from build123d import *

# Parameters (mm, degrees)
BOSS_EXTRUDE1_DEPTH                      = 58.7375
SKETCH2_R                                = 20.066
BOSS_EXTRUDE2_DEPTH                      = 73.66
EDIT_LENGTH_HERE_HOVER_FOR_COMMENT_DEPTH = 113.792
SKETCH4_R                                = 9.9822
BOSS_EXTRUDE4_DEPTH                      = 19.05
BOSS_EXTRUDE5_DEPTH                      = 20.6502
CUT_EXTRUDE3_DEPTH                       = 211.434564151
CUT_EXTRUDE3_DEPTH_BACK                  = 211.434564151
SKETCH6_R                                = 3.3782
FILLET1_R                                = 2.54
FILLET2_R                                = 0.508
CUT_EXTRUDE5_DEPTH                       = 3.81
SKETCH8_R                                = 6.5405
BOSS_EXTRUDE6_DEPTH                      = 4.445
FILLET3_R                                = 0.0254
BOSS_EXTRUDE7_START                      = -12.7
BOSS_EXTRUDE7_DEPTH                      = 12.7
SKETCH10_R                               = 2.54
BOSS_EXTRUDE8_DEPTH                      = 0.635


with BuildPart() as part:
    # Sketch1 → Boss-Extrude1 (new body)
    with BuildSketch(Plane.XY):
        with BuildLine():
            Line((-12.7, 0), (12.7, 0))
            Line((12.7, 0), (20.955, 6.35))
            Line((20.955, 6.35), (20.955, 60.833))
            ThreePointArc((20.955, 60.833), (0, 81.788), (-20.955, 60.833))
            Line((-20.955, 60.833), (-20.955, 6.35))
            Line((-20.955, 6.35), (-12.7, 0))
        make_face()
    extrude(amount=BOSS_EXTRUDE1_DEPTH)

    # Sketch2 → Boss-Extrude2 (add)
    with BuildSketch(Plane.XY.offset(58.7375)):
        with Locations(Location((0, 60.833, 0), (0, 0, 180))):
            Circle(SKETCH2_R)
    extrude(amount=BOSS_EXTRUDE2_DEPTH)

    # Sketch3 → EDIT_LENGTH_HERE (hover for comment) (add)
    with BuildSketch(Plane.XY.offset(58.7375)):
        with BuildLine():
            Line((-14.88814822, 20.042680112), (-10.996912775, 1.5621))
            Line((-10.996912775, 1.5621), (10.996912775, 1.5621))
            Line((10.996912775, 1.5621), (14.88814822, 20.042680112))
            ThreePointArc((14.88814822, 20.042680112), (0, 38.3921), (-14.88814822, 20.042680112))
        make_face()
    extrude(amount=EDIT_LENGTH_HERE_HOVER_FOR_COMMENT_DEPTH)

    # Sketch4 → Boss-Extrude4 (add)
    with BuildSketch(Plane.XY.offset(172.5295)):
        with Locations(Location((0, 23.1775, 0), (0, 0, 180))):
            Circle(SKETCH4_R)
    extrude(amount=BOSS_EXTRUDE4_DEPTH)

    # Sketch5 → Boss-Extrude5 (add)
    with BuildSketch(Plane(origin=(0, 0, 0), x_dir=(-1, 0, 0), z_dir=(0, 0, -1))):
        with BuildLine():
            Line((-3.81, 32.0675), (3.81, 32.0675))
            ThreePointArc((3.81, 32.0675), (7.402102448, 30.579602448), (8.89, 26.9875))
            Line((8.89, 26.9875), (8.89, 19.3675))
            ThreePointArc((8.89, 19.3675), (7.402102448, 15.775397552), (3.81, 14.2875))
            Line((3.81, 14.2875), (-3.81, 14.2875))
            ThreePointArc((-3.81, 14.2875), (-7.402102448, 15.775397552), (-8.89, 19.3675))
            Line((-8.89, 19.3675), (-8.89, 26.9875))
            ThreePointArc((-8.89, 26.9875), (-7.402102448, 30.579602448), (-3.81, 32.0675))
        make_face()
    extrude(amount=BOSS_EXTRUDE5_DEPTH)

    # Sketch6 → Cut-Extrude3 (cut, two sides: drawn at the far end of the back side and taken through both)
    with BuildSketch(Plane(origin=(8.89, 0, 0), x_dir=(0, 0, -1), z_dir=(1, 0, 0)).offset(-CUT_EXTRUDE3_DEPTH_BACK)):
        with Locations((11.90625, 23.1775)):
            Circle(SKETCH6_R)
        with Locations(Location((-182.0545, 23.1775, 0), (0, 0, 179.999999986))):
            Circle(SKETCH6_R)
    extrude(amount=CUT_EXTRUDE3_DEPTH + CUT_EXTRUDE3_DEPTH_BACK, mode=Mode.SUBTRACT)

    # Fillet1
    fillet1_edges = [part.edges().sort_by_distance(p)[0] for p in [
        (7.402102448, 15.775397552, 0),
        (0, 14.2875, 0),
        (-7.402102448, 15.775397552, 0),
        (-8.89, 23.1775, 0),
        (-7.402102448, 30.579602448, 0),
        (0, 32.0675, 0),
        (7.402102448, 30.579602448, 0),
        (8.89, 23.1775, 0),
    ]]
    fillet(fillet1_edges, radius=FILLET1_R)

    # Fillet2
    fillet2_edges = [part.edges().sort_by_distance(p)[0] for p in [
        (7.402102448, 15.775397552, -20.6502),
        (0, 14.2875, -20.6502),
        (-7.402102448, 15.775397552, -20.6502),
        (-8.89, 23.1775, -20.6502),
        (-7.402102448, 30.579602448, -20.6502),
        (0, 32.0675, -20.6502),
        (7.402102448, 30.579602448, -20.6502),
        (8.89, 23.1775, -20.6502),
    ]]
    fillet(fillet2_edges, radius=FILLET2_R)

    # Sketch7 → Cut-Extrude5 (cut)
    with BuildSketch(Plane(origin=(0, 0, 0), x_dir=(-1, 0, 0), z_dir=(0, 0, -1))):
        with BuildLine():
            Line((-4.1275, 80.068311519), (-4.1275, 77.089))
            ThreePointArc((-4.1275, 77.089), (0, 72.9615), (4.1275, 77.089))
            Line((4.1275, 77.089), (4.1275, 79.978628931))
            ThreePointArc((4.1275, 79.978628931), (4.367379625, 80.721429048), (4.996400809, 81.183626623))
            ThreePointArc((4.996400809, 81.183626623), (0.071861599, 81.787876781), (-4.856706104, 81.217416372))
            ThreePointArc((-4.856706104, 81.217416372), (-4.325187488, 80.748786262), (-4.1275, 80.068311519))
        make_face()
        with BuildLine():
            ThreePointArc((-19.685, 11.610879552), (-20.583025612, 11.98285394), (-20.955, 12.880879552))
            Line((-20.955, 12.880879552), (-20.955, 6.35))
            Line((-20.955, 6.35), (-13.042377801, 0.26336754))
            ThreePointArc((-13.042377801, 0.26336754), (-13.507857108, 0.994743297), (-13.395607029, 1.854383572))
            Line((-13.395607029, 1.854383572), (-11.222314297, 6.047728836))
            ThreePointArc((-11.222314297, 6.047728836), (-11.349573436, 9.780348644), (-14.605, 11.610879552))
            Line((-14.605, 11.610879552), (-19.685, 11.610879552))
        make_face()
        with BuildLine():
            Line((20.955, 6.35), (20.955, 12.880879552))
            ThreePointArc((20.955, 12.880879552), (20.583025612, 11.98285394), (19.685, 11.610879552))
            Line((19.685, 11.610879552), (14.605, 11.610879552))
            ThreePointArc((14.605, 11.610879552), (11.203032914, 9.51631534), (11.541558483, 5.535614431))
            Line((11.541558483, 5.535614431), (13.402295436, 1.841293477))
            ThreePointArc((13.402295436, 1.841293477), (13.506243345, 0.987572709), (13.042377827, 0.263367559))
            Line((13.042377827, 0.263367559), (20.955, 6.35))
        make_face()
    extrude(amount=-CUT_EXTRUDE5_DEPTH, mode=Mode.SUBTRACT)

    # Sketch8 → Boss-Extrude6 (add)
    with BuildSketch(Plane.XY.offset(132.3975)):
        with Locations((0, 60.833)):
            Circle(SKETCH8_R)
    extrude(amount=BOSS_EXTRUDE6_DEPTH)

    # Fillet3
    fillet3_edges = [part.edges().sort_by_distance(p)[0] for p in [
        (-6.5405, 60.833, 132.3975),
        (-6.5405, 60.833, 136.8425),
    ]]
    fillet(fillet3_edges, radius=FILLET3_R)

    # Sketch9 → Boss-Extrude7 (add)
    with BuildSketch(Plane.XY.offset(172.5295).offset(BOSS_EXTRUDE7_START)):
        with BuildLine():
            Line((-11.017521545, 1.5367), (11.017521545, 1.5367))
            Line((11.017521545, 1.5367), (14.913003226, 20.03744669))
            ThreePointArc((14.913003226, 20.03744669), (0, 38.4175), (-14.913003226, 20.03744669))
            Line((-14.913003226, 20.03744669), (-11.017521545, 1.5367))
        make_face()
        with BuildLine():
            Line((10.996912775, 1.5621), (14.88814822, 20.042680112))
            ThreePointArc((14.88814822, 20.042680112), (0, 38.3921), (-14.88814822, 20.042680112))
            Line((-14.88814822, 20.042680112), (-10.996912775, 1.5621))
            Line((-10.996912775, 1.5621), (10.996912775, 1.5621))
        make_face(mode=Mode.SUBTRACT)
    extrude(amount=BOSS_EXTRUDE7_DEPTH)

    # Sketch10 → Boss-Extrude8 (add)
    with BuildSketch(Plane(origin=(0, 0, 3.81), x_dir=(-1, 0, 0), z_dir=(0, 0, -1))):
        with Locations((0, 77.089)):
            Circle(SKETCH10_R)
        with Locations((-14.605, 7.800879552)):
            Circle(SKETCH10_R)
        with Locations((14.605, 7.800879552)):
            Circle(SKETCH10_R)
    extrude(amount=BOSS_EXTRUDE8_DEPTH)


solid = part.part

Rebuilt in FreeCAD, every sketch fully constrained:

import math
import FreeCAD as App
import Part
import Sketcher
Q = App.Units.Quantity


def edges_at(feature, points):
    """Names of the edges that pass closest to the given points."""
    edges = feature.Shape.Edges
    near = lambda p: min(range(len(edges)), key=lambda i: edges[i].distToShape(Part.Vertex(*p))[0])
    return sorted({f"Edge{near(p) + 1}" for p in points})

doc = App.newDocument("Part")
body = doc.addObject("PartDesign::Body", "Body")

sketch1 = body.newObject("Sketcher::SketchObject", "Sketch")
sketch1.AttachmentSupport = (doc.getObject("XY_Plane"), [""])
sketch1.MapMode = "FlatFace"
sketch1.addGeometry([
    Part.LineSegment(App.Vector(-13, 0, 0), App.Vector(13, 0, 0)),
    Part.LineSegment(App.Vector(13, 0, 0), App.Vector(21, 6, 0)),
    Part.LineSegment(App.Vector(21, 6, 0), App.Vector(21, 61, 0)),
    Part.ArcOfCircle(Part.Circle(App.Vector(0, 61, 0), App.Vector(0, 0, 1), 21), math.radians(0), math.radians(180)),
    Part.LineSegment(App.Vector(-21, 61, 0), App.Vector(-21, 6, 0)),
    Part.LineSegment(App.Vector(-21, 6, 0), App.Vector(-13, 0, 0)),
], False)
sketch1.addConstraint([
    Sketcher.Constraint("Coincident", 0, 2, 1, 1),
    Sketcher.Constraint("Coincident", 1, 2, 2, 1),
    Sketcher.Constraint("Tangent", 2, 2, 3, 1),
    Sketcher.Constraint("Tangent", 3, 2, 4, 1),
    Sketcher.Constraint("Coincident", 4, 2, 5, 1),
    Sketcher.Constraint("Coincident", 5, 2, 0, 1),
    Sketcher.Constraint("Horizontal", 0),
    Sketcher.Constraint("Vertical", 2),
    Sketcher.Constraint("Vertical", 4),
    Sketcher.Constraint("Symmetric", 0, 2, 5, 2, -1, 1),
    Sketcher.Constraint("Symmetric", 1, 2, 4, 2, -2),
    Sketcher.Constraint("DistanceX", 0, 1, 0, 2, Q("1 in")),
    Sketcher.Constraint("Radius", 3, Q("0.825 in")),
    Sketcher.Constraint("DistanceY", 2, 1, 2, 2, Q("2.145 in")),
    Sketcher.Constraint("DistanceY", -1, 1, 1, 2, Q("0.25 in")),
])
pad1 = body.newObject("PartDesign::Pad", "Pad")
pad1.Profile = sketch1
pad1.Length = Q("2.3125 in")

sketch2 = body.newObject("Sketcher::SketchObject", "Sketch001")
sketch2.AttachmentSupport = (doc.getObject("XY_Plane"), [""])
sketch2.MapMode = "FlatFace"
sketch2.AttachmentOffset = App.Placement(App.Vector(0, 0, 2.3125 * 25.4), App.Rotation())
sketch2.addGeometry(Part.Circle(App.Vector(0, 61, 0), App.Vector(0, 0, 1), 20), False)
sketch2.addConstraint([
    Sketcher.Constraint("PointOnObject", 0, 3, -2),
    Sketcher.Constraint("Diameter", 0, Q("1.58 in")),
    Sketcher.Constraint("DistanceY", -1, 1, 0, 3, Q("2.395 in")),
])
pad2 = body.newObject("PartDesign::Pad", "Pad001")
pad2.Profile = sketch2
pad2.Length = Q("2.9 in")

sketch3 = body.newObject("Sketcher::SketchObject", "Sketch002")
sketch3.AttachmentSupport = (doc.getObject("XY_Plane"), [""])
sketch3.MapMode = "FlatFace"
sketch3.AttachmentOffset = App.Placement(App.Vector(0, 0, 2.3125 * 25.4), App.Rotation())
sketch3.addGeometry([
    Part.LineSegment(App.Vector(-15, 20, 0), App.Vector(-11, 2, 0)),
    Part.LineSegment(App.Vector(-11, 2, 0), App.Vector(11, 2, 0)),
    Part.LineSegment(App.Vector(11, 2, 0), App.Vector(15, 20, 0)),
    Part.ArcOfCircle(Part.Circle(App.Vector(0, 23, 0), App.Vector(0, 0, 1), 15), math.radians(-12), math.radians(192)),
], False)
sketch3.addConstraint([
    Sketcher.Constraint("Coincident", 0, 2, 1, 1),
    Sketcher.Constraint("Coincident", 1, 2, 2, 1),
    Sketcher.Constraint("Tangent", 2, 2, 3, 1),
    Sketcher.Constraint("Tangent", 3, 2, 0, 1),
    Sketcher.Constraint("Horizontal", 1),
    Sketcher.Constraint("Symmetric", 2, 2, 3, 2, -2),
    Sketcher.Constraint("Radius", 3, Q("0.599 in")),
    Sketcher.Constraint("DistanceY", 0, 2, 3, 3, Q("0.851 in")),
    Sketcher.Constraint("DistanceY", -1, 1, 3, 3, Q("0.9125 in")),
    Sketcher.Constraint("DistanceX", 1, 1, 1, 2, Q("21.993826 mm")),
])
pad3 = body.newObject("PartDesign::Pad", "Pad002")
pad3.Profile = sketch3
pad3.Length = Q("4.48 in")

sketch4 = body.newObject("Sketcher::SketchObject", "Sketch003")
sketch4.AttachmentSupport = (doc.getObject("XY_Plane"), [""])
sketch4.MapMode = "FlatFace"
sketch4.AttachmentOffset = App.Placement(App.Vector(0, 0, 6.7925 * 25.4), App.Rotation())
sketch4.addGeometry(Part.Circle(App.Vector(0, 23, 0), App.Vector(0, 0, 1), 10), False)
sketch4.addConstraint([
    Sketcher.Constraint("PointOnObject", 0, 3, -2),
    Sketcher.Constraint("Diameter", 0, Q("0.786 in")),
    Sketcher.Constraint("DistanceY", -1, 1, 0, 3, Q("0.9125 in")),
])
pad4 = body.newObject("PartDesign::Pad", "Pad003")
pad4.Profile = sketch4
pad4.Length = Q("0.75 in")

sketch5 = body.newObject("Sketcher::SketchObject", "Sketch004")
sketch5.AttachmentSupport = (doc.getObject("XY_Plane"), [""])
sketch5.MapMode = "FlatFace"
sketch5.addGeometry([
    Part.LineSegment(App.Vector(-4, 32, 0), App.Vector(4, 32, 0)),
    Part.ArcOfCircle(Part.Circle(App.Vector(4, 27, 0), App.Vector(0, 0, 1), 5), math.radians(0), math.radians(90)),
    Part.LineSegment(App.Vector(9, 27, 0), App.Vector(9, 19, 0)),
    Part.ArcOfCircle(Part.Circle(App.Vector(4, 19, 0), App.Vector(0, 0, 1), 5), math.radians(-90), math.radians(0)),
    Part.LineSegment(App.Vector(4, 14, 0), App.Vector(-4, 14, 0)),
    Part.ArcOfCircle(Part.Circle(App.Vector(-4, 19, 0), App.Vector(0, 0, 1), 5), math.radians(-180), math.radians(-90)),
    Part.LineSegment(App.Vector(-9, 19, 0), App.Vector(-9, 27, 0)),
    Part.ArcOfCircle(Part.Circle(App.Vector(-4, 27, 0), App.Vector(0, 0, 1), 5), math.radians(90), math.radians(180)),
], False)
sketch5.addConstraint([
    Sketcher.Constraint("Tangent", 0, 2, 1, 2),
    Sketcher.Constraint("Tangent", 1, 1, 2, 1),
    Sketcher.Constraint("Tangent", 2, 2, 3, 2),
    Sketcher.Constraint("Tangent", 3, 1, 4, 1),
    Sketcher.Constraint("Tangent", 4, 2, 5, 2),
    Sketcher.Constraint("Tangent", 5, 1, 6, 1),
    Sketcher.Constraint("Tangent", 6, 2, 7, 2),
    Sketcher.Constraint("Tangent", 7, 1, 0, 1),
    Sketcher.Constraint("Horizontal", 0),
    Sketcher.Constraint("Vertical", 2),
    Sketcher.Constraint("Horizontal", 4),
    Sketcher.Constraint("Vertical", 6),
    Sketcher.Constraint("Equal", 1, 3),
    Sketcher.Constraint("Equal", 3, 5),
    Sketcher.Constraint("Equal", 5, 7),
    Sketcher.Constraint("Equal", 4, 2),
    Sketcher.Constraint("Radius", 1, Q("0.2 in")),
    Sketcher.Constraint("DistanceX", 0, 1, 0, 2, Q("0.3 in")),
    Sketcher.Constraint("DistanceX", -1, 1, 1, 3, Q("0.15 in")),
    Sketcher.Constraint("DistanceY", -1, 1, 1, 3, Q("1.0625 in")),
])
pad5 = body.newObject("PartDesign::Pad", "Pad004")
pad5.Profile = sketch5
pad5.Length = Q("0.813 in")
pad5.Reversed = True

sketch6 = body.newObject("Sketcher::SketchObject", "Sketch005")
sketch6.AttachmentSupport = (doc.getObject("YZ_Plane"), [""])
sketch6.MapMode = "FlatFace"
sketch6.AttachmentOffset = App.Placement(App.Vector(0, 0, 0.35 * 25.4), App.Rotation())
sketch6.addGeometry([
    Part.Circle(App.Vector(23.2, -11.9, 0), App.Vector(0, 0, 1), 3.4),
    Part.Circle(App.Vector(23.2, 182.1, 0), App.Vector(0, 0, 1), 3.4),
], False)
sketch6.addConstraint([
    Sketcher.Constraint("Equal", 0, 1),
    Sketcher.Constraint("Vertical", 0, 3, 1, 3),
    Sketcher.Constraint("Diameter", 0, Q("0.266 in")),
    Sketcher.Constraint("DistanceY", 0, 3, -1, 1, Q("0.46875 in")),
    Sketcher.Constraint("DistanceX", -1, 1, 0, 3, Q("0.9125 in")),
    Sketcher.Constraint("DistanceY", -1, 1, 1, 3, Q("7.1675 in")),
])
pocket1 = body.newObject("PartDesign::Pocket", "Pocket")
pocket1.Profile = sketch6
pocket1.Type = "ThroughAll"
pocket1.Midplane = True
doc.recompute()

fillet = body.newObject("PartDesign::Fillet", "Fillet")
fillet.Base = (pocket1, edges_at(pocket1, [
    (7.402, 15.775, 0),
    (0, 14.287, 0),
    (-7.402, 15.775, 0),
    (-8.89, 23.177, 0),
    (-7.402, 30.58, 0),
    (0, 32.068, 0),
    (7.402, 30.58, 0),
    (8.89, 23.177, 0),
]))
fillet.Radius = Q("0.1 in")
doc.recompute()

fillet2 = body.newObject("PartDesign::Fillet", "Fillet001")
fillet2.Base = (fillet, edges_at(fillet, [
    (7.402, 15.775, -20.65),
    (0, 14.287, -20.65),
    (-7.402, 15.775, -20.65),
    (-8.89, 23.177, -20.65),
    (-7.402, 30.58, -20.65),
    (0, 32.068, -20.65),
    (7.402, 30.58, -20.65),
    (8.89, 23.177, -20.65),
]))
fillet2.Radius = Q("0.02 in")

sketch7 = body.newObject("Sketcher::SketchObject", "Sketch006")
sketch7.AttachmentSupport = (doc.getObject("XY_Plane"), [""])
sketch7.MapMode = "FlatFace"
sketch7.addGeometry([
    Part.LineSegment(App.Vector(4.1, 80.1, 0), App.Vector(4.1, 77.1, 0)),
    Part.ArcOfCircle(Part.Circle(App.Vector(0, 77.1, 0), App.Vector(0, 0, 1), 4.1), math.radians(180), math.radians(360)),
    Part.LineSegment(App.Vector(-4.1, 77.1, 0), App.Vector(-4.1, 80, 0)),
    Part.ArcOfCircle(Part.Circle(App.Vector(-5.4, 80, 0), App.Vector(0, 0, 1), 1.3), math.radians(0), math.radians(72)),
    Part.ArcOfCircle(Part.Circle(App.Vector(0, 60.8, 0), App.Vector(0, 0, 1), 21), math.radians(77), math.radians(104)),
    Part.ArcOfCircle(Part.Circle(App.Vector(5.4, 80.1, 0), App.Vector(0, 0, 1), 1.3), math.radians(115), math.radians(180)),
    Part.ArcOfCircle(Part.Circle(App.Vector(19.7, 12.9, 0), App.Vector(0, 0, 1), 1.3), math.radians(-90), math.radians(0)),
    Part.LineSegment(App.Vector(21, 12.9, 0), App.Vector(21, 6.3, 0)),
    Part.LineSegment(App.Vector(21, 6.3, 0), App.Vector(13, 0.3, 0)),
    Part.ArcOfCircle(Part.Circle(App.Vector(12.3, 1.3, 0), App.Vector(0, 0, 1), 1.3), math.radians(-52), math.radians(27)),
    Part.LineSegment(App.Vector(13.4, 1.9, 0), App.Vector(11.2, 6, 0)),
    Part.ArcOfCircle(Part.Circle(App.Vector(14.6, 7.8, 0), App.Vector(0, 0, 1), 3.8), math.radians(90), math.radians(207)),
    Part.LineSegment(App.Vector(14.6, 11.6, 0), App.Vector(19.7, 11.6, 0)),
    Part.LineSegment(App.Vector(-21, 6.3, 0), App.Vector(-21, 12.9, 0)),
    Part.ArcOfCircle(Part.Circle(App.Vector(-19.7, 12.9, 0), App.Vector(0, 0, 1), 1.3), math.radians(180), math.radians(270)),
    Part.LineSegment(App.Vector(-19.7, 11.6, 0), App.Vector(-14.6, 11.6, 0)),
    Part.ArcOfCircle(Part.Circle(App.Vector(-14.6, 7.8, 0), App.Vector(0, 0, 1), 3.8), math.radians(-36), math.radians(90)),
    Part.LineSegment(App.Vector(-11.5, 5.5, 0), App.Vector(-13.4, 1.8, 0)),
    Part.ArcOfCircle(Part.Circle(App.Vector(-12.3, 1.3, 0), App.Vector(0, 0, 1), 1.3), math.radians(153), math.radians(232)),
    Part.LineSegment(App.Vector(-13, 0.3, 0), App.Vector(-21, 6.3, 0)),
], False)
sketch7.addConstraint([
    Sketcher.Constraint("Tangent", 0, 2, 1, 2),
    Sketcher.Constraint("Tangent", 1, 1, 2, 1),
    Sketcher.Constraint("Tangent", 2, 2, 3, 1),
    Sketcher.Constraint("Coincident", 3, 2, 4, 2),
    Sketcher.Constraint("Coincident", 4, 1, 5, 1),
    Sketcher.Constraint("Tangent", 5, 2, 0, 1),
    Sketcher.Constraint("Tangent", 6, 2, 7, 1),
    Sketcher.Constraint("Coincident", 7, 2, 8, 1),
    Sketcher.Constraint("Tangent", 8, 2, 9, 1),
    Sketcher.Constraint("Tangent", 9, 2, 10, 1),
    Sketcher.Constraint("Tangent", 10, 2, 11, 2),
    Sketcher.Constraint("Tangent", 11, 1, 12, 1),
    Sketcher.Constraint("Tangent", 12, 2, 6, 1),
    Sketcher.Constraint("Tangent", 13, 2, 14, 1),
    Sketcher.Constraint("Tangent", 14, 2, 15, 1),
    Sketcher.Constraint("Tangent", 15, 2, 16, 2),
    Sketcher.Constraint("Coincident", 16, 1, 17, 1),
    Sketcher.Constraint("Tangent", 17, 2, 18, 1),
    Sketcher.Constraint("Tangent", 18, 2, 19, 1),
    Sketcher.Constraint("Coincident", 19, 2, 13, 1),
    Sketcher.Constraint("Vertical", 0),
    Sketcher.Constraint("Vertical", 2),
    Sketcher.Constraint("Vertical", 7),
    Sketcher.Constraint("Horizontal", 12),
    Sketcher.Constraint("Vertical", 13),
    Sketcher.Constraint("Horizontal", 15),
    Sketcher.Constraint("Equal", 3, 5),
    Sketcher.Constraint("Equal", 5, 6),
    Sketcher.Constraint("Equal", 6, 9),
    Sketcher.Constraint("Equal", 9, 14),
    Sketcher.Constraint("Equal", 11, 16),
    Sketcher.Constraint("Equal", 14, 18),
    Sketcher.Constraint("Symmetric", 6, 3, 14, 3, -2),
    Sketcher.Constraint("Symmetric", 9, 3, 18, 3, -2),
    Sketcher.Constraint("PointOnObject", 1, 3, -2),
    Sketcher.Constraint("PointOnObject", 4, 3, -2),
    Sketcher.Constraint("Horizontal", 8, 2, 18, 2),
    Sketcher.Constraint("Equal", 12, 15),
    Sketcher.Constraint("Radius", 3, Q("0.05 in")),
    Sketcher.Constraint("Radius", 11, Q("0.15 in")),
    Sketcher.Constraint("DistanceX", 12, 1, 12, 2, Q("0.2 in")),
    Sketcher.Constraint("Radius", 4, Q("0.825 in")),
    Sketcher.Constraint("Radius", 1, Q("0.1625 in")),
    Sketcher.Constraint("DistanceX", 16, 3, 6, 2, Q("1.4 in")),
    Sketcher.Constraint("DistanceY", 9, 3, 7, 2, Q("0.2 in")),
    Sketcher.Constraint("DistanceY", -1, 1, 9, 3, Q("0.05 in")),
    Sketcher.Constraint("DistanceY", 4, 3, 1, 3, Q("0.64 in")),
    Sketcher.Constraint("DistanceY", -1, 1, 1, 3, Q("3.035 in")),
    Sketcher.Constraint("DistanceY", 0, 2, 0, 1, Q("2.979312 mm")),
    Sketcher.Constraint("DistanceY", 2, 1, 2, 2, Q("2.889629 mm")),
    Sketcher.Constraint("DistanceY", 7, 2, 7, 1, Q("6.53088 mm")),
    Sketcher.Constraint("Distance", 8, Q("9.982819 mm")),
    Sketcher.Constraint("DistanceX", 16, 1, -1, 1, Q("11.541558 mm")),
])
pocket2 = body.newObject("PartDesign::Pocket", "Pocket001")
pocket2.Profile = sketch7
pocket2.Length = Q("0.15 in")
pocket2.Reversed = True

sketch8 = body.newObject("Sketcher::SketchObject", "Sketch007")
sketch8.AttachmentSupport = (doc.getObject("XY_Plane"), [""])
sketch8.MapMode = "FlatFace"
sketch8.AttachmentOffset = App.Placement(App.Vector(0, 0, 5.2125 * 25.4), App.Rotation())
sketch8.addGeometry(Part.Circle(App.Vector(0, 61, 0), App.Vector(0, 0, 1), 7), False)
sketch8.addConstraint([
    Sketcher.Constraint("PointOnObject", 0, 3, -2),
    Sketcher.Constraint("Diameter", 0, Q("0.515 in")),
    Sketcher.Constraint("DistanceY", -1, 1, 0, 3, Q("2.395 in")),
])
pad6 = body.newObject("PartDesign::Pad", "Pad005")
pad6.Profile = sketch8
pad6.Length = Q("0.175 in")
doc.recompute()

fillet3 = body.newObject("PartDesign::Fillet", "Fillet002")
fillet3.Base = (pad6, edges_at(pad6, [(-6.54, 60.833, 132.398), (-6.54, 60.833, 136.843)]))
fillet3.Radius = Q("0.001 in")

sketch9 = body.newObject("Sketcher::SketchObject", "Sketch008")
sketch9.AttachmentSupport = (doc.getObject("XY_Plane"), [""])
sketch9.MapMode = "FlatFace"
sketch9.AttachmentOffset = App.Placement(App.Vector(0, 0, 6.2925 * 25.4), App.Rotation())
sketch9.addGeometry([
    Part.LineSegment(App.Vector(-11, 2, 0), App.Vector(11, 2, 0)),
    Part.LineSegment(App.Vector(11, 2, 0), App.Vector(15, 20, 0)),
    Part.ArcOfCircle(Part.Circle(App.Vector(0, 23, 0), App.Vector(0, 0, 1), 15), math.radians(-12), math.radians(192)),
    Part.LineSegment(App.Vector(-15, 20, 0), App.Vector(-11, 2, 0)),
    Part.LineSegment(App.Vector(15, 20, 0), App.Vector(11, 2, 0)),
    Part.LineSegment(App.Vector(11, 2, 0), App.Vector(-11, 2, 0)),
    Part.LineSegment(App.Vector(-11, 2, 0), App.Vector(-15, 20, 0)),
    Part.ArcOfCircle(Part.Circle(App.Vector(0, 23, 0), App.Vector(0, 0, 1), 15), math.radians(-12), math.radians(192)),
], False)
sketch9.addConstraint([
    Sketcher.Constraint("Coincident", 0, 2, 1, 1),
    Sketcher.Constraint("Tangent", 1, 2, 2, 1),
    Sketcher.Constraint("Tangent", 2, 2, 3, 1),
    Sketcher.Constraint("Coincident", 3, 2, 0, 1),
    Sketcher.Constraint("Coincident", 4, 2, 5, 1),
    Sketcher.Constraint("Coincident", 5, 2, 6, 1),
    Sketcher.Constraint("Tangent", 6, 2, 7, 2),
    Sketcher.Constraint("Tangent", 7, 1, 4, 1),
    Sketcher.Constraint("Horizontal", 0),
    Sketcher.Constraint("Horizontal", 5),
    Sketcher.Constraint("Coincident", 7, 3, 2, 3),
    Sketcher.Constraint("Symmetric", 1, 2, 2, 2, -2),
    Sketcher.Constraint("Parallel", 1, 4),
    Sketcher.Constraint("Parallel", 3, 6),
    Sketcher.Constraint("Radius", 2, Q("0.6 in")),
    Sketcher.Constraint("Radius", 7, Q("0.599 in")),
    Sketcher.Constraint("DistanceY", 0, 2, 2, 3, Q("0.852 in")),
    Sketcher.Constraint("DistanceY", 0, 2, 4, 2, Q("0.001 in")),
    Sketcher.Constraint("DistanceY", -1, 1, 2, 3, Q("0.9125 in")),
    Sketcher.Constraint("Distance", 1, Q("18.906412 mm")),
])
pad7 = body.newObject("PartDesign::Pad", "Pad006")
pad7.Profile = sketch9
pad7.Length = Q("0.5 in")

sketch10 = body.newObject("Sketcher::SketchObject", "Sketch009")
sketch10.AttachmentSupport = (doc.getObject("XY_Plane"), [""])
sketch10.MapMode = "FlatFace"
sketch10.AttachmentOffset = App.Placement(App.Vector(0, 0, 0.15 * 25.4), App.Rotation())
sketch10.addGeometry([
    Part.Circle(App.Vector(0, 77.1, 0), App.Vector(0, 0, 1), 2.5),
    Part.Circle(App.Vector(14.6, 7.8, 0), App.Vector(0, 0, 1), 2.5),
    Part.Circle(App.Vector(-14.6, 7.8, 0), App.Vector(0, 0, 1), 2.5),
], False)
sketch10.addConstraint([
    Sketcher.Constraint("Equal", 0, 1),
    Sketcher.Constraint("Equal", 1, 2),
    Sketcher.Constraint("Symmetric", 1, 3, 2, 3, -2),
    Sketcher.Constraint("PointOnObject", 0, 3, -2),
    Sketcher.Constraint("Diameter", 0, Q("0.2 in")),
    Sketcher.Constraint("DistanceX", 2, 3, 1, 3, Q("1.15 in")),
    Sketcher.Constraint("DistanceY", -1, 1, 0, 3, Q("3.035 in")),
    Sketcher.Constraint("DistanceY", -1, 1, 1, 3, Q("7.80088 mm")),
])
pad8 = body.newObject("PartDesign::Pad", "Pad007")
pad8.Profile = sketch10
pad8.Length = Q("0.025 in")
pad8.Reversed = True

doc.recompute()
